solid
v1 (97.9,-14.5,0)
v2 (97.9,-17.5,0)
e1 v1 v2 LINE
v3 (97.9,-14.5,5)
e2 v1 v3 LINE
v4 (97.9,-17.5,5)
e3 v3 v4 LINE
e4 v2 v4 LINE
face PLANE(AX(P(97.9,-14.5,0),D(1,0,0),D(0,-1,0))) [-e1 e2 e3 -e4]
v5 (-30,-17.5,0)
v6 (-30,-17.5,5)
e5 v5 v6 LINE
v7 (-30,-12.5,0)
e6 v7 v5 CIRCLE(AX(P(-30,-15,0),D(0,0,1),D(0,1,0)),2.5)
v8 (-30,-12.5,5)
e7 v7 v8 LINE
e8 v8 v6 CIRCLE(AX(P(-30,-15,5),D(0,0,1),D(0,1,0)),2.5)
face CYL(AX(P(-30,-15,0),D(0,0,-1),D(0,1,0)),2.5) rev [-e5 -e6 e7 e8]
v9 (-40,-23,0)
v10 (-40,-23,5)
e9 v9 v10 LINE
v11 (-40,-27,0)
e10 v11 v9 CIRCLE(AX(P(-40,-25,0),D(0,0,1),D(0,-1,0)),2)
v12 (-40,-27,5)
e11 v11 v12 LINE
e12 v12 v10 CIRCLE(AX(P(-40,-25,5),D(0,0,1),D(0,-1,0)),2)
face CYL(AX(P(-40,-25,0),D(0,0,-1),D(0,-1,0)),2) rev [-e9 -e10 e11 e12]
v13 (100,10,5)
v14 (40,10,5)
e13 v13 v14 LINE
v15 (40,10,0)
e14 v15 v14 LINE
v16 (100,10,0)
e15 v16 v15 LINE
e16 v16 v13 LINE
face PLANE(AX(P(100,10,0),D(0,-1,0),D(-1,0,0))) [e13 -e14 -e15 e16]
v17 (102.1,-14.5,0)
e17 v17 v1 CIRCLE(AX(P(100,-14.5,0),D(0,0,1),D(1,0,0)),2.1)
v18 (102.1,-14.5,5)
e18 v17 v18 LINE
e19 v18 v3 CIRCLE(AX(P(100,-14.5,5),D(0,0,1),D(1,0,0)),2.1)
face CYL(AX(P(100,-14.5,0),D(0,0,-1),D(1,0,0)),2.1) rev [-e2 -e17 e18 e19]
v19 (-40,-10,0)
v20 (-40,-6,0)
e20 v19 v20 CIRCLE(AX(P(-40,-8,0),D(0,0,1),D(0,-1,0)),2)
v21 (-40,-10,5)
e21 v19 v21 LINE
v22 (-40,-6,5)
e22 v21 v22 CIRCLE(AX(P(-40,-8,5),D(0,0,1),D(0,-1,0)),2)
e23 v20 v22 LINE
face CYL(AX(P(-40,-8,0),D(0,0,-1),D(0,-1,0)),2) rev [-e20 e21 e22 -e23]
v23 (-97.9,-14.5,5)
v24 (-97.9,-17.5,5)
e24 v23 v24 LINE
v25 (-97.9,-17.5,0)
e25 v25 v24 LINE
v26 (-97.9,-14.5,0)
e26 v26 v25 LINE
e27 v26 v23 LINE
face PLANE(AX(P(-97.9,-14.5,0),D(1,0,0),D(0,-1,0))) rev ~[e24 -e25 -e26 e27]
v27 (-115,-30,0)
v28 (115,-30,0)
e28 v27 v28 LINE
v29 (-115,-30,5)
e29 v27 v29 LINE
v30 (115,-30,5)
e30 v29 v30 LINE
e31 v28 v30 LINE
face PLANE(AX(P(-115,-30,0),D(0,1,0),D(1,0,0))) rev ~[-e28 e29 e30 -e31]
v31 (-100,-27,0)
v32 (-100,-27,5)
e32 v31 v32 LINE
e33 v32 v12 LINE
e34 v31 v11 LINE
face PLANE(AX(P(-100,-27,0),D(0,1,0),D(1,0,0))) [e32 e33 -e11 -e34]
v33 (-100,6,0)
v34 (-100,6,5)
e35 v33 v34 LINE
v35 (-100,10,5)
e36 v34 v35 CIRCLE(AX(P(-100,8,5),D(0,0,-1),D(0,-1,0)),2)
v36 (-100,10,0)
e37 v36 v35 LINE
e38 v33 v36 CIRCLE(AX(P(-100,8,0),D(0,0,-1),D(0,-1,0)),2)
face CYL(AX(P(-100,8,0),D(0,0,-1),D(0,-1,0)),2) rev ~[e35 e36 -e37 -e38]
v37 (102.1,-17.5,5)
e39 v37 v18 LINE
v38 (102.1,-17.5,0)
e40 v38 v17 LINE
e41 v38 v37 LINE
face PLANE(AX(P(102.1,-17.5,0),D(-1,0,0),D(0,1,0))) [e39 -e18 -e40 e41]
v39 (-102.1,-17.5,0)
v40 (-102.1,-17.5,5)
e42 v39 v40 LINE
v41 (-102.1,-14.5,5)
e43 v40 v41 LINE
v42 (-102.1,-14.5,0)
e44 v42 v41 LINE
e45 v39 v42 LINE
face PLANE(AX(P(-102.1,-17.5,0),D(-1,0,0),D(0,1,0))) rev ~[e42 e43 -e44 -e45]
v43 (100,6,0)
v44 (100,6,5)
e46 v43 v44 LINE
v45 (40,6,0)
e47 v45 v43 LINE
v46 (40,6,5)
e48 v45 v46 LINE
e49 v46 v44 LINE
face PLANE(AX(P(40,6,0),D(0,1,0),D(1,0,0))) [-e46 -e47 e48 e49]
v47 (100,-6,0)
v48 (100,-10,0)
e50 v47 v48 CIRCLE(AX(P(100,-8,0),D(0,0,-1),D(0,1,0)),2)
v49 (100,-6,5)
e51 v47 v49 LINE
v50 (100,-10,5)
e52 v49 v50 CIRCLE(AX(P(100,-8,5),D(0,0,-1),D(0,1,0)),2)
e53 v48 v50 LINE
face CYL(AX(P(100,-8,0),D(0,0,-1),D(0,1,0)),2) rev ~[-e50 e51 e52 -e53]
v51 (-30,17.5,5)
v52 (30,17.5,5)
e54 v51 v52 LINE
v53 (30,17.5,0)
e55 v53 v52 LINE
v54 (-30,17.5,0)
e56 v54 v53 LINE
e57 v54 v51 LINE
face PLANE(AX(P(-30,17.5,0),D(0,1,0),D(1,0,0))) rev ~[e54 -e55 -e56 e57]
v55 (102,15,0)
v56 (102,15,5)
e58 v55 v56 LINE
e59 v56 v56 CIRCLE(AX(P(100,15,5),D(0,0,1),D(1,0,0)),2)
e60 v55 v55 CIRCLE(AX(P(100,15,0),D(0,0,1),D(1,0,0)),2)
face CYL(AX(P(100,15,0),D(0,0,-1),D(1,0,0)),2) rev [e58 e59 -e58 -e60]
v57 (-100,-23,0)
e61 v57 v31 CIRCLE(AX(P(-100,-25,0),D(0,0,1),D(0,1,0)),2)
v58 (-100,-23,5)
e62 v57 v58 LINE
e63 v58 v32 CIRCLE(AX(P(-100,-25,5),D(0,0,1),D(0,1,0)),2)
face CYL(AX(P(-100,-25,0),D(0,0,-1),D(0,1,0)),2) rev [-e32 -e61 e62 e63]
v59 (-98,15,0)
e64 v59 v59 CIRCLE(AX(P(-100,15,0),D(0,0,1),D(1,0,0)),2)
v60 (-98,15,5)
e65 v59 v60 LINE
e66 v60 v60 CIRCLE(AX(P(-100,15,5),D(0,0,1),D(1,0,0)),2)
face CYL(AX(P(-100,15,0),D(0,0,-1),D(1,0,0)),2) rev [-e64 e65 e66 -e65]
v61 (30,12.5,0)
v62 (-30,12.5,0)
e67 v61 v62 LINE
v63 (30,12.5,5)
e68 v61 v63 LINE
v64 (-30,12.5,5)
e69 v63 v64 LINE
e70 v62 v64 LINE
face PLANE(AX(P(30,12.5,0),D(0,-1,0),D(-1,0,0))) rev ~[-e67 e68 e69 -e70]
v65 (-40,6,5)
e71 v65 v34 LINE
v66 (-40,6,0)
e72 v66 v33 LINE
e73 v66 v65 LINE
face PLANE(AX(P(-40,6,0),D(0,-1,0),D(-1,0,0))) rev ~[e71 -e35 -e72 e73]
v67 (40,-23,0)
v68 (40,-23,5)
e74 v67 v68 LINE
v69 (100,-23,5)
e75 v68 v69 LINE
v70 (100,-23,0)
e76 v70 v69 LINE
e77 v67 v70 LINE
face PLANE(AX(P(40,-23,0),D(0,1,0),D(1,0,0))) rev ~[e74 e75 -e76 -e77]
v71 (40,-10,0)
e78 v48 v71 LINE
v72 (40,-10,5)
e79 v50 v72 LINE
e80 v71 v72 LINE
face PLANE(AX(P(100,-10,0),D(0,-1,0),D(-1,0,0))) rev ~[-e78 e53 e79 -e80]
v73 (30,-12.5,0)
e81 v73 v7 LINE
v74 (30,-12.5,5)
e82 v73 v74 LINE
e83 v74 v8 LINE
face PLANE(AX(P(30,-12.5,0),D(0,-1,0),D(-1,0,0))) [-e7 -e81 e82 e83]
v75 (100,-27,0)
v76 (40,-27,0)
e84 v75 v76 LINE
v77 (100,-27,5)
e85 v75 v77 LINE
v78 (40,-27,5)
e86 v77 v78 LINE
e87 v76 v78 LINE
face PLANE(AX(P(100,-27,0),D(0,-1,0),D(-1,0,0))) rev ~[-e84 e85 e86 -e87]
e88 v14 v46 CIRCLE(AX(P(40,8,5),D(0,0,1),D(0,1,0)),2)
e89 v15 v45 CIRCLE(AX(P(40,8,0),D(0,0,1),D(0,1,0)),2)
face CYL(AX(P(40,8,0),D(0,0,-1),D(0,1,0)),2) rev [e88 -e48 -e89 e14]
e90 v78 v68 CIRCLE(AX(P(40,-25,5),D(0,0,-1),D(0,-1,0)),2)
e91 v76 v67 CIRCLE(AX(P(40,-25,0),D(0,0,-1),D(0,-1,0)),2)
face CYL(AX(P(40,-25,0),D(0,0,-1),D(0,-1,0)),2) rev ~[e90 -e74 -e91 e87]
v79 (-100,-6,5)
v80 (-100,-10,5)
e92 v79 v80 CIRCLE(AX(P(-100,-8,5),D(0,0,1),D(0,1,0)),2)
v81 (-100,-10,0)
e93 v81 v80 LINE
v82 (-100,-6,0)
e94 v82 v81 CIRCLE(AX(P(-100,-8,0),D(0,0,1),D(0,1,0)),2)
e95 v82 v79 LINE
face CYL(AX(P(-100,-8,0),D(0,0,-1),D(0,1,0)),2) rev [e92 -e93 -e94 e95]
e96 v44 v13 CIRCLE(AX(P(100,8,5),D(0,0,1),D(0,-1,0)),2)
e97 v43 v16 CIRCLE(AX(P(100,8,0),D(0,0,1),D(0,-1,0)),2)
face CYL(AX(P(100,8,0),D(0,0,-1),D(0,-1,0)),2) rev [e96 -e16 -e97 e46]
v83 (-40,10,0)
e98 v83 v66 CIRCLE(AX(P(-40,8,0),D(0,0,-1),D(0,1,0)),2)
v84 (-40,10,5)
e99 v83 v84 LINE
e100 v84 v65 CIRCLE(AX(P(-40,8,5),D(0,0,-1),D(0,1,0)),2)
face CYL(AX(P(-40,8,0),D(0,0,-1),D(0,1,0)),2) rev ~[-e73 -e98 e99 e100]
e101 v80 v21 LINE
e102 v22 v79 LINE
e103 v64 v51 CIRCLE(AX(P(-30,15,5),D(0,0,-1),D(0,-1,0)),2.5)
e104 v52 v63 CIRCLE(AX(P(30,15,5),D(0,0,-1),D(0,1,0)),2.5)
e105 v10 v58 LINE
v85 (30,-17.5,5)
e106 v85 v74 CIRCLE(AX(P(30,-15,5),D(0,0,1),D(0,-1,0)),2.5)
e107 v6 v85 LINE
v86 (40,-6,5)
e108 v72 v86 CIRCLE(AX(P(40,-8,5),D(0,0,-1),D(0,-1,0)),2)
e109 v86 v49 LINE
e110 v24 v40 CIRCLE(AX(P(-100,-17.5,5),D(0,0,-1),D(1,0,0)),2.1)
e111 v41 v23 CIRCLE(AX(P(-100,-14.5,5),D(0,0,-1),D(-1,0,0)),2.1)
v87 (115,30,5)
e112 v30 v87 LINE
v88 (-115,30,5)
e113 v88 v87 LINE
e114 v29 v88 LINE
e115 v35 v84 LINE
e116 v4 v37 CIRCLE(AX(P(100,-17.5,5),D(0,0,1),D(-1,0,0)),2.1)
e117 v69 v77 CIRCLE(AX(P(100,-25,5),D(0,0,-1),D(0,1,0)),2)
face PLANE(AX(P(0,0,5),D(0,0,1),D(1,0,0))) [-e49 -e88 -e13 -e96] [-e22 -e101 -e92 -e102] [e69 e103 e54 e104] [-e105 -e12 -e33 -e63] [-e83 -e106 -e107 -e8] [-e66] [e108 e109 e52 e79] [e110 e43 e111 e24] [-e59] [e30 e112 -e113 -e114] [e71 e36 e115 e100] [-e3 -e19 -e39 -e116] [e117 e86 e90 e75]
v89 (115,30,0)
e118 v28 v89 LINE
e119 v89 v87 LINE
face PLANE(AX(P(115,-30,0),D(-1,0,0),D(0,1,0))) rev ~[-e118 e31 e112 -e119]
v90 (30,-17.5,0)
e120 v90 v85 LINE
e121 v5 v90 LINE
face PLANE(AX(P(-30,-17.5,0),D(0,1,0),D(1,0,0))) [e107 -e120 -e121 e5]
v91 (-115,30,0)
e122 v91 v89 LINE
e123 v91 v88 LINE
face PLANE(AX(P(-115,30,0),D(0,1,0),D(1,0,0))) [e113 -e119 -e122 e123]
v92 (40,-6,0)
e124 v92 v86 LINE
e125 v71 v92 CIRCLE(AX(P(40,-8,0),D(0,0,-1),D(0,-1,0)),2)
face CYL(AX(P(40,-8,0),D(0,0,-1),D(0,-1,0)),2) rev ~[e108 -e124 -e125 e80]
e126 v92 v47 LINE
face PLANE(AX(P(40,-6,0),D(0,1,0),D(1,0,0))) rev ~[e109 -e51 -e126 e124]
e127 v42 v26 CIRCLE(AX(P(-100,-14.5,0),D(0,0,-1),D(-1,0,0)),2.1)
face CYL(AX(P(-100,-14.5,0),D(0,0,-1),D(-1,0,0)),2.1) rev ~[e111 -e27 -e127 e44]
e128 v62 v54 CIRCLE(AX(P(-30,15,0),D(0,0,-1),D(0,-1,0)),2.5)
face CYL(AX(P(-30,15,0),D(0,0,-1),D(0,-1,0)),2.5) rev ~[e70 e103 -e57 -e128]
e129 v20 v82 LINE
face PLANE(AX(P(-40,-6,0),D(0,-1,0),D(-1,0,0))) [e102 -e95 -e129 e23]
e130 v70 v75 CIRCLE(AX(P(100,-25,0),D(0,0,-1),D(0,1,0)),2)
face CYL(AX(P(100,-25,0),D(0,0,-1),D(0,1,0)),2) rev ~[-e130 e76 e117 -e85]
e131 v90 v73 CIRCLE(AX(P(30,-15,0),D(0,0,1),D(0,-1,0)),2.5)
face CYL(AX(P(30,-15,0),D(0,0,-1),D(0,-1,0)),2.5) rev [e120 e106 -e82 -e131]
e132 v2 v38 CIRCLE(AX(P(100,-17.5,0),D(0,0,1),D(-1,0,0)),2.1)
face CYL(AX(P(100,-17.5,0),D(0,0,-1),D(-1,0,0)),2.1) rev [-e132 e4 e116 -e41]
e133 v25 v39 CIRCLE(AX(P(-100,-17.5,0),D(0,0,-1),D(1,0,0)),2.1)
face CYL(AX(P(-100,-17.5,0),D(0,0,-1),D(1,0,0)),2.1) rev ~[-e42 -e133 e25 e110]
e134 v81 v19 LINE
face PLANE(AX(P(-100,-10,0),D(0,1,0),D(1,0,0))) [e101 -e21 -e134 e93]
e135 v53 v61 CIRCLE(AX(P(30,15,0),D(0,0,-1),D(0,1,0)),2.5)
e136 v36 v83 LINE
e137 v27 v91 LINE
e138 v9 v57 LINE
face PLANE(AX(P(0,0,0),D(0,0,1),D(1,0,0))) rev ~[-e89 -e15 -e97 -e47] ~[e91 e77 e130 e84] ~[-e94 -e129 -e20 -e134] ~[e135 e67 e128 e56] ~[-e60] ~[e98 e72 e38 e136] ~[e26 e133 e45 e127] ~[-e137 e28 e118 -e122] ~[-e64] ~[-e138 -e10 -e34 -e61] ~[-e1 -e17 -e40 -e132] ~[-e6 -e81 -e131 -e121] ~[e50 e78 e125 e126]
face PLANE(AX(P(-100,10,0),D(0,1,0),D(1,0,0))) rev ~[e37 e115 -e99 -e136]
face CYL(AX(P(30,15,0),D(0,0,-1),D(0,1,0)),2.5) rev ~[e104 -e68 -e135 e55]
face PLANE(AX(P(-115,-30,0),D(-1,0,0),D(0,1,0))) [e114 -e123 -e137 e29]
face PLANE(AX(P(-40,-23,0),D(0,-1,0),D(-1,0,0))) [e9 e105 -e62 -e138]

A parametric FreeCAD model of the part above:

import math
import FreeCAD as App
import Part
import Sketcher
from FreeCAD import Vector
Q = App.Units.Quantity

doc = App.newDocument("Part")
body = doc.addObject("PartDesign::Body", "Body")

sketch1 = body.newObject("Sketcher::SketchObject", "Sketch")
sketch1.AttachmentSupport = (doc.getObject("XY_Plane"), [""])
sketch1.MapMode = "FlatFace"
sketch1.addGeometry([
    Part.LineSegment(Vector(-115, 30, 0), Vector(-115, -30, 0)),
    Part.LineSegment(Vector(-115, -30, 0), Vector(115, -30, 0)),
    Part.LineSegment(Vector(115, -30, 0), Vector(115, 30, 0)),
    Part.LineSegment(Vector(115, 30, 0), Vector(-115, 30, 0)),
    Part.LineSegment(Vector(-100, -23, 0), Vector(-40, -23, 0)),
    Part.ArcOfCircle(Part.Circle(Vector(-40, -25, 0), Vector(0, 0, 1), 2), math.radians(-90), math.radians(90)),
    Part.LineSegment(Vector(-40, -27, 0), Vector(-100, -27, 0)),
    Part.ArcOfCircle(Part.Circle(Vector(-100, -25, 0), Vector(0, 0, 1), 2), math.radians(90), math.radians(270)),
    Part.ArcOfCircle(Part.Circle(Vector(-100, -17.5, 0), Vector(0, 0, 1), 2.1), math.radians(180), math.radians(360)),
    Part.LineSegment(Vector(-102.1, -17.5, 0), Vector(-102.1, -14.5, 0)),
    Part.ArcOfCircle(Part.Circle(Vector(-100, -14.5, 0), Vector(0, 0, 1), 2.1), math.radians(0), math.radians(180)),
    Part.LineSegment(Vector(-97.9, -14.5, 0), Vector(-97.9, -17.5, 0)),
    Part.LineSegment(Vector(-40, -10, 0), Vector(-100, -10, 0)),
    Part.ArcOfCircle(Part.Circle(Vector(-100, -8, 0), Vector(0, 0, 1), 2), math.radians(90), math.radians(270)),
    Part.LineSegment(Vector(-100, -6, 0), Vector(-40, -6, 0)),
    Part.ArcOfCircle(Part.Circle(Vector(-40, -8, 0), Vector(0, 0, 1), 2), math.radians(-90), math.radians(90)),
    Part.ArcOfCircle(Part.Circle(Vector(40, -25, 0), Vector(0, 0, 1), 2), math.radians(90), math.radians(270)),
    Part.LineSegment(Vector(40, -23, 0), Vector(100, -23, 0)),
    Part.ArcOfCircle(Part.Circle(Vector(100, -25, 0), Vector(0, 0, 1), 2), math.radians(-90), math.radians(90)),
    Part.LineSegment(Vector(100, -27, 0), Vector(40, -27, 0)),
    Part.LineSegment(Vector(102.1, -14.5, 0), Vector(102.1, -17.5, 0)),
    Part.ArcOfCircle(Part.Circle(Vector(100, -17.5, 0), Vector(0, 0, 1), 2.1), math.radians(180), math.radians(360)),
    Part.LineSegment(Vector(97.9, -17.5, 0), Vector(97.9, -14.5, 0)),
    Part.ArcOfCircle(Part.Circle(Vector(100, -14.5, 0), Vector(0, 0, 1), 2.1), math.radians(0), math.radians(180)),
    Part.LineSegment(Vector(30, -17.5, 0), Vector(-30, -17.5, 0)),
    Part.ArcOfCircle(Part.Circle(Vector(-30, -15, 0), Vector(0, 0, 1), 2.5), math.radians(90), math.radians(270)),
    Part.LineSegment(Vector(-30, -12.5, 0), Vector(30, -12.5, 0)),
    Part.ArcOfCircle(Part.Circle(Vector(30, -15, 0), Vector(0, 0, 1), 2.5), math.radians(-90), math.radians(90)),
    Part.ArcOfCircle(Part.Circle(Vector(100, -8, 0), Vector(0, 0, 1), 2), math.radians(-90), math.radians(90)),
    Part.LineSegment(Vector(100, -10, 0), Vector(40, -10, 0)),
    Part.ArcOfCircle(Part.Circle(Vector(40, -8, 0), Vector(0, 0, 1), 2), math.radians(90), math.radians(270)),
    Part.LineSegment(Vector(40, -6, 0), Vector(100, -6, 0)),
    Part.ArcOfCircle(Part.Circle(Vector(-100, 8, 0), Vector(0, 0, 1), 2), math.radians(90), math.radians(270)),
    Part.LineSegment(Vector(-100, 10, 0), Vector(-40, 10, 0)),
    Part.ArcOfCircle(Part.Circle(Vector(-40, 8, 0), Vector(0, 0, 1), 2), math.radians(-90), math.radians(90)),
    Part.LineSegment(Vector(-40, 6, 0), Vector(-100, 6, 0)),
    Part.Circle(Vector(-100, 15, 0), Vector(0, 0, 1), 2),
    Part.ArcOfCircle(Part.Circle(Vector(-30, 15, 0), Vector(0, 0, 1), 2.5), math.radians(90), math.radians(270)),
    Part.LineSegment(Vector(-30, 17.5, 0), Vector(30, 17.5, 0)),
    Part.ArcOfCircle(Part.Circle(Vector(30, 15, 0), Vector(0, 0, 1), 2.5), math.radians(-90), math.radians(90)),
    Part.LineSegment(Vector(30, 12.5, 0), Vector(-30, 12.5, 0)),
    Part.LineSegment(Vector(40, 10, 0), Vector(100, 10, 0)),
    Part.ArcOfCircle(Part.Circle(Vector(100, 8, 0), Vector(0, 0, 1), 2), math.radians(-90), math.radians(90)),
    Part.LineSegment(Vector(100, 6, 0), Vector(40, 6, 0)),
    Part.ArcOfCircle(Part.Circle(Vector(40, 8, 0), Vector(0, 0, 1), 2), math.radians(90), math.radians(270)),
    Part.Circle(Vector(100, 15, 0), Vector(0, 0, 1), 2),
], False)
sketch1.addConstraint([
    Sketcher.Constraint("Coincident", 0, 2, 1, 1),
    Sketcher.Constraint("Coincident", 1, 2, 2, 1),
    Sketcher.Constraint("Coincident", 2, 2, 3, 1),
    Sketcher.Constraint("Coincident", 3, 2, 0, 1),
    Sketcher.Constraint("Tangent", 4, 2, 5, 2),
    Sketcher.Constraint("Tangent", 5, 1, 6, 1),
    Sketcher.Constraint("Tangent", 6, 2, 7, 2),
    Sketcher.Constraint("Tangent", 7, 1, 4, 1),
    Sketcher.Constraint("Tangent", 8, 1, 9, 1),
    Sketcher.Constraint("Tangent", 9, 2, 10, 2),
    Sketcher.Constraint("Tangent", 10, 1, 11, 1),
    Sketcher.Constraint("Tangent", 11, 2, 8, 2),
    Sketcher.Constraint("Tangent", 12, 2, 13, 2),
    Sketcher.Constraint("Tangent", 13, 1, 14, 1),
    Sketcher.Constraint("Tangent", 14, 2, 15, 2),
    Sketcher.Constraint("Tangent", 15, 1, 12, 1),
    Sketcher.Constraint("Tangent", 16, 1, 17, 1),
    Sketcher.Constraint("Tangent", 17, 2, 18, 2),
    Sketcher.Constraint("Tangent", 18, 1, 19, 1),
    Sketcher.Constraint("Tangent", 19, 2, 16, 2),
    Sketcher.Constraint("Tangent", 20, 2, 21, 2),
    Sketcher.Constraint("Tangent", 21, 1, 22, 1),
    Sketcher.Constraint("Tangent", 22, 2, 23, 2),
    Sketcher.Constraint("Tangent", 23, 1, 20, 1),
    Sketcher.Constraint("Tangent", 24, 2, 25, 2),
    Sketcher.Constraint("Tangent", 25, 1, 26, 1),
    Sketcher.Constraint("Tangent", 26, 2, 27, 2),
    Sketcher.Constraint("Tangent", 27, 1, 24, 1),
    Sketcher.Constraint("Tangent", 28, 1, 29, 1),
    Sketcher.Constraint("Tangent", 29, 2, 30, 2),
    Sketcher.Constraint("Tangent", 30, 1, 31, 1),
    Sketcher.Constraint("Tangent", 31, 2, 28, 2),
    Sketcher.Constraint("Tangent", 32, 1, 33, 1),
    Sketcher.Constraint("Tangent", 33, 2, 34, 2),
    Sketcher.Constraint("Tangent", 34, 1, 35, 1),
    Sketcher.Constraint("Tangent", 35, 2, 32, 2),
    Sketcher.Constraint("Tangent", 37, 1, 38, 1),
    Sketcher.Constraint("Tangent", 38, 2, 39, 2),
    Sketcher.Constraint("Tangent", 39, 1, 40, 1),
    Sketcher.Constraint("Tangent", 40, 2, 37, 2),
    Sketcher.Constraint("Tangent", 41, 2, 42, 2),
    Sketcher.Constraint("Tangent", 42, 1, 43, 1),
    Sketcher.Constraint("Tangent", 43, 2, 44, 2),
    Sketcher.Constraint("Tangent", 44, 1, 41, 1),
    Sketcher.Constraint("Vertical", 0),
    Sketcher.Constraint("Horizontal", 1),
    Sketcher.Constraint("Vertical", 2),
    Sketcher.Constraint("Horizontal", 3),
    Sketcher.Constraint("Horizontal", 4),
    Sketcher.Constraint("Horizontal", 6),
    Sketcher.Constraint("Vertical", 9),
    Sketcher.Constraint("Vertical", 11),
    Sketcher.Constraint("Horizontal", 12),
    Sketcher.Constraint("Horizontal", 14),
    Sketcher.Constraint("Horizontal", 17),
    Sketcher.Constraint("Horizontal", 19),
    Sketcher.Constraint("Vertical", 20),
    Sketcher.Constraint("Vertical", 22),
    Sketcher.Constraint("Horizontal", 24),
    Sketcher.Constraint("Horizontal", 26),
    Sketcher.Constraint("Horizontal", 29),
    Sketcher.Constraint("Horizontal", 31),
    Sketcher.Constraint("Horizontal", 33),
    Sketcher.Constraint("Horizontal", 35),
    Sketcher.Constraint("Horizontal", 38),
    Sketcher.Constraint("Horizontal", 40),
    Sketcher.Constraint("Horizontal", 41),
    Sketcher.Constraint("Horizontal", 43),
    Sketcher.Constraint("Equal", 7, 13),
    Sketcher.Constraint("Equal", 15, 16),
    Sketcher.Constraint("Equal", 10, 21),
    Sketcher.Constraint("Equal", 18, 28),
    Sketcher.Constraint("Equal", 30, 32),
    Sketcher.Constraint("Equal", 34, 36),
    Sketcher.Constraint("Equal", 27, 37),
    Sketcher.Constraint("Equal", 36, 42),
    Sketcher.Constraint("Equal", 44, 45),
    Sketcher.Constraint("Symmetric", 28, 3, 32, 3, -1, 1),
    Sketcher.Constraint("Symmetric", 27, 3, 37, 3, -1, 1),
    Sketcher.Constraint("Symmetric", 13, 3, 42, 3, -1, 1),
    Sketcher.Constraint("Symmetric", 0, 2, 2, 2, -1, 1),
    Sketcher.Constraint("Symmetric", 5, 3, 16, 3, -2),
    Sketcher.Constraint("Symmetric", 8, 3, 21, 3, -2),
    Sketcher.Constraint("Symmetric", 13, 3, 28, 3, -2),
    Sketcher.Constraint("Symmetric", 36, 3, 45, 3, -2),
    Sketcher.Constraint("Horizontal", 10, 3, 23, 3),
    Sketcher.Constraint("Horizontal", 36, 3, 37, 3),
    Sketcher.Constraint("Horizontal", 21, 1, 24, 2),
    Sketcher.Constraint("Vertical", 7, 3, 8, 3),
    Sketcher.Constraint("Vertical", 10, 3, 13, 3),
    Sketcher.Constraint("Vertical", 5, 3, 15, 3),
    Sketcher.Constraint("Vertical", 18, 3, 21, 3),
    Sketcher.Constraint("Vertical", 16, 3, 30, 3),
    Sketcher.Constraint("Vertical", 15, 3, 34, 3),
    Sketcher.Constraint("Vertical", 32, 3, 36, 3),
    Sketcher.Constraint("Vertical", 25, 3, 37, 3),
    Sketcher.Constraint("Vertical", 27, 3, 39, 3),
    Sketcher.Constraint("Vertical", 30, 3, 44, 3),
    Sketcher.Constraint("Equal", 19, 24),
    Sketcher.Constraint("Equal", 43, 0),
    Sketcher.Constraint("Diameter", 36, Q("4 mm")),
    Sketcher.Constraint("Radius", 8, Q("2.1 mm")),
    Sketcher.Constraint("Radius", 25, Q("2.5 mm")),
    Sketcher.Constraint("DistanceX", 1, 1, 1, 2, Q("230 mm")),
    Sketcher.Constraint("DistanceX", 4, 1, 4, 2, Q("60 mm")),
    Sketcher.Constraint("DistanceY", 9, 1, 9, 2, Q("3 mm")),
    Sketcher.Constraint("DistanceX", 5, 3, -1, 1, Q("40 mm")),
    Sketcher.Constraint("DistanceY", 5, 3, -1, 1, Q("25 mm")),
    Sketcher.Constraint("DistanceY", 13, 3, -1, 1, Q("8 mm")),
    Sketcher.Constraint("DistanceY", 25, 3, -1, 1, Q("15 mm")),
])
pad1 = body.newObject("PartDesign::Pad", "Pad")
pad1.Profile = sketch1
pad1.Length = 5

doc.recompute()
